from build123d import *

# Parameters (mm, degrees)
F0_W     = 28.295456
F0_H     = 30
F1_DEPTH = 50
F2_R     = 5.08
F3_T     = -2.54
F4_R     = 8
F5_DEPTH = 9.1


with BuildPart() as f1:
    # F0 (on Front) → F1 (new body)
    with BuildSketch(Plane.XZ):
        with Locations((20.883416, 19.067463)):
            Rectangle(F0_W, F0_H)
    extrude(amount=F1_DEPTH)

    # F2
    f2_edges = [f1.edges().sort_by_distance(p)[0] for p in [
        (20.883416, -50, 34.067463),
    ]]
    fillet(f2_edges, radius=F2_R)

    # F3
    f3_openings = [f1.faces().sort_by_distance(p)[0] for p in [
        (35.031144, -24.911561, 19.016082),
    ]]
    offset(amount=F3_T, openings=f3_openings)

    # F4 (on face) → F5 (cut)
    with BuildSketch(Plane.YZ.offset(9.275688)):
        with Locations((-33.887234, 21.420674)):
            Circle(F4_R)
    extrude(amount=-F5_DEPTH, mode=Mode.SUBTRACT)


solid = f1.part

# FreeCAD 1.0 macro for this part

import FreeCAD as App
import Part
import Sketcher

V = App.Vector
Q = App.Units.Quantity


def edges_at(feature, points):
    """Names of the edges that pass closest to the given points."""
    edges = feature.Shape.Edges
    near = lambda p: min(range(len(edges)), key=lambda i: edges[i].distToShape(Part.Vertex(*p))[0])
    return sorted({f"Edge{near(p) + 1}" for p in points})


def faces_at(feature, points):
    """Names of the faces that lie closest to the given points."""
    faces = feature.Shape.Faces
    near = lambda p: min(range(len(faces)), key=lambda i: faces[i].distToShape(Part.Vertex(*p))[0])
    return sorted({f"Face{near(p) + 1}" for p in points})

doc = App.newDocument("Part")
body = doc.addObject("PartDesign::Body", "Body")

# Sketch on XZ plane
sketch1 = body.newObject("Sketcher::SketchObject", "Sketch")
sketch1.AttachmentSupport = (doc.getObject("XZ_Plane"), [""])
sketch1.MapMode = "FlatFace"
sketch1.addGeometry(Part.LineSegment(V(7, 34, 0), V(7, 4, 0)), False)
sketch1.addGeometry(Part.LineSegment(V(7, 4, 0), V(35, 4, 0)), False)
sketch1.addGeometry(Part.LineSegment(V(35, 4, 0), V(35, 34, 0)), False)
sketch1.addGeometry(Part.LineSegment(V(35, 34, 0), V(7, 34, 0)), False)
sketch1.addConstraint(Sketcher.Constraint("Coincident", 0, 2, 1, 1))
sketch1.addConstraint(Sketcher.Constraint("Coincident", 1, 2, 2, 1))
sketch1.addConstraint(Sketcher.Constraint("Coincident", 2, 2, 3, 1))
sketch1.addConstraint(Sketcher.Constraint("Coincident", 3, 2, 0, 1))
sketch1.addConstraint(Sketcher.Constraint("Vertical", 0))
sketch1.addConstraint(Sketcher.Constraint("Horizontal", 1))
sketch1.addConstraint(Sketcher.Constraint("Vertical", 2))
sketch1.addConstraint(Sketcher.Constraint("Horizontal", 3))
sketch1.addConstraint(Sketcher.Constraint("DistanceY", 0, 2, 0, 1, Q("30 mm")))
sketch1.addConstraint(Sketcher.Constraint("DistanceX", 1, 1, 1, 2, Q("28.295456 mm")))
sketch1.addConstraint(Sketcher.Constraint("DistanceX", -1, 1, 0, 2, Q("6.735688 mm")))
sketch1.addConstraint(Sketcher.Constraint("DistanceY", -1, 1, 0, 2, Q("4.067463 mm")))
pad1 = body.newObject("PartDesign::Pad", "Pad")
pad1.Profile = sketch1
pad1.Length = 50
doc.recompute()

fillet = body.newObject("PartDesign::Fillet", "Fillet")
fillet.Base = (pad1, edges_at(pad1, [(20.883, -50, 34.067)]))
fillet.Radius = 5.08
doc.recompute()

thickness = body.newObject("PartDesign::Thickness", "Thickness")
thickness.Base = (fillet, faces_at(fillet, [(35.031, -25, 19.067)]))
thickness.Value = 2.54
thickness.Reversed = True
thickness.Join = "Arc"

# Sketch on YZ plane
sketch2 = body.newObject("Sketcher::SketchObject", "Sketch001")
sketch2.AttachmentSupport = (doc.getObject("YZ_Plane"), [""])
sketch2.MapMode = "FlatFace"
sketch2.AttachmentOffset = App.Placement(V(0, 0, 9.275688), App.Rotation())
sketch2.addGeometry(Part.Circle(V(-34, 21, 0), V(0, 0, 1), 8), False)
sketch2.addConstraint(Sketcher.Constraint("Diameter", 0, Q("16 mm")))
sketch2.addConstraint(Sketcher.Constraint("DistanceX", 0, 3, -1, 1, Q("33.887234 mm")))
sketch2.addConstraint(Sketcher.Constraint("DistanceY", -1, 1, 0, 3, Q("21.420674 mm")))
pocket1 = body.newObject("PartDesign::Pocket", "Pocket")
pocket1.Profile = sketch2
pocket1.Length = 9.1

doc.recompute()
